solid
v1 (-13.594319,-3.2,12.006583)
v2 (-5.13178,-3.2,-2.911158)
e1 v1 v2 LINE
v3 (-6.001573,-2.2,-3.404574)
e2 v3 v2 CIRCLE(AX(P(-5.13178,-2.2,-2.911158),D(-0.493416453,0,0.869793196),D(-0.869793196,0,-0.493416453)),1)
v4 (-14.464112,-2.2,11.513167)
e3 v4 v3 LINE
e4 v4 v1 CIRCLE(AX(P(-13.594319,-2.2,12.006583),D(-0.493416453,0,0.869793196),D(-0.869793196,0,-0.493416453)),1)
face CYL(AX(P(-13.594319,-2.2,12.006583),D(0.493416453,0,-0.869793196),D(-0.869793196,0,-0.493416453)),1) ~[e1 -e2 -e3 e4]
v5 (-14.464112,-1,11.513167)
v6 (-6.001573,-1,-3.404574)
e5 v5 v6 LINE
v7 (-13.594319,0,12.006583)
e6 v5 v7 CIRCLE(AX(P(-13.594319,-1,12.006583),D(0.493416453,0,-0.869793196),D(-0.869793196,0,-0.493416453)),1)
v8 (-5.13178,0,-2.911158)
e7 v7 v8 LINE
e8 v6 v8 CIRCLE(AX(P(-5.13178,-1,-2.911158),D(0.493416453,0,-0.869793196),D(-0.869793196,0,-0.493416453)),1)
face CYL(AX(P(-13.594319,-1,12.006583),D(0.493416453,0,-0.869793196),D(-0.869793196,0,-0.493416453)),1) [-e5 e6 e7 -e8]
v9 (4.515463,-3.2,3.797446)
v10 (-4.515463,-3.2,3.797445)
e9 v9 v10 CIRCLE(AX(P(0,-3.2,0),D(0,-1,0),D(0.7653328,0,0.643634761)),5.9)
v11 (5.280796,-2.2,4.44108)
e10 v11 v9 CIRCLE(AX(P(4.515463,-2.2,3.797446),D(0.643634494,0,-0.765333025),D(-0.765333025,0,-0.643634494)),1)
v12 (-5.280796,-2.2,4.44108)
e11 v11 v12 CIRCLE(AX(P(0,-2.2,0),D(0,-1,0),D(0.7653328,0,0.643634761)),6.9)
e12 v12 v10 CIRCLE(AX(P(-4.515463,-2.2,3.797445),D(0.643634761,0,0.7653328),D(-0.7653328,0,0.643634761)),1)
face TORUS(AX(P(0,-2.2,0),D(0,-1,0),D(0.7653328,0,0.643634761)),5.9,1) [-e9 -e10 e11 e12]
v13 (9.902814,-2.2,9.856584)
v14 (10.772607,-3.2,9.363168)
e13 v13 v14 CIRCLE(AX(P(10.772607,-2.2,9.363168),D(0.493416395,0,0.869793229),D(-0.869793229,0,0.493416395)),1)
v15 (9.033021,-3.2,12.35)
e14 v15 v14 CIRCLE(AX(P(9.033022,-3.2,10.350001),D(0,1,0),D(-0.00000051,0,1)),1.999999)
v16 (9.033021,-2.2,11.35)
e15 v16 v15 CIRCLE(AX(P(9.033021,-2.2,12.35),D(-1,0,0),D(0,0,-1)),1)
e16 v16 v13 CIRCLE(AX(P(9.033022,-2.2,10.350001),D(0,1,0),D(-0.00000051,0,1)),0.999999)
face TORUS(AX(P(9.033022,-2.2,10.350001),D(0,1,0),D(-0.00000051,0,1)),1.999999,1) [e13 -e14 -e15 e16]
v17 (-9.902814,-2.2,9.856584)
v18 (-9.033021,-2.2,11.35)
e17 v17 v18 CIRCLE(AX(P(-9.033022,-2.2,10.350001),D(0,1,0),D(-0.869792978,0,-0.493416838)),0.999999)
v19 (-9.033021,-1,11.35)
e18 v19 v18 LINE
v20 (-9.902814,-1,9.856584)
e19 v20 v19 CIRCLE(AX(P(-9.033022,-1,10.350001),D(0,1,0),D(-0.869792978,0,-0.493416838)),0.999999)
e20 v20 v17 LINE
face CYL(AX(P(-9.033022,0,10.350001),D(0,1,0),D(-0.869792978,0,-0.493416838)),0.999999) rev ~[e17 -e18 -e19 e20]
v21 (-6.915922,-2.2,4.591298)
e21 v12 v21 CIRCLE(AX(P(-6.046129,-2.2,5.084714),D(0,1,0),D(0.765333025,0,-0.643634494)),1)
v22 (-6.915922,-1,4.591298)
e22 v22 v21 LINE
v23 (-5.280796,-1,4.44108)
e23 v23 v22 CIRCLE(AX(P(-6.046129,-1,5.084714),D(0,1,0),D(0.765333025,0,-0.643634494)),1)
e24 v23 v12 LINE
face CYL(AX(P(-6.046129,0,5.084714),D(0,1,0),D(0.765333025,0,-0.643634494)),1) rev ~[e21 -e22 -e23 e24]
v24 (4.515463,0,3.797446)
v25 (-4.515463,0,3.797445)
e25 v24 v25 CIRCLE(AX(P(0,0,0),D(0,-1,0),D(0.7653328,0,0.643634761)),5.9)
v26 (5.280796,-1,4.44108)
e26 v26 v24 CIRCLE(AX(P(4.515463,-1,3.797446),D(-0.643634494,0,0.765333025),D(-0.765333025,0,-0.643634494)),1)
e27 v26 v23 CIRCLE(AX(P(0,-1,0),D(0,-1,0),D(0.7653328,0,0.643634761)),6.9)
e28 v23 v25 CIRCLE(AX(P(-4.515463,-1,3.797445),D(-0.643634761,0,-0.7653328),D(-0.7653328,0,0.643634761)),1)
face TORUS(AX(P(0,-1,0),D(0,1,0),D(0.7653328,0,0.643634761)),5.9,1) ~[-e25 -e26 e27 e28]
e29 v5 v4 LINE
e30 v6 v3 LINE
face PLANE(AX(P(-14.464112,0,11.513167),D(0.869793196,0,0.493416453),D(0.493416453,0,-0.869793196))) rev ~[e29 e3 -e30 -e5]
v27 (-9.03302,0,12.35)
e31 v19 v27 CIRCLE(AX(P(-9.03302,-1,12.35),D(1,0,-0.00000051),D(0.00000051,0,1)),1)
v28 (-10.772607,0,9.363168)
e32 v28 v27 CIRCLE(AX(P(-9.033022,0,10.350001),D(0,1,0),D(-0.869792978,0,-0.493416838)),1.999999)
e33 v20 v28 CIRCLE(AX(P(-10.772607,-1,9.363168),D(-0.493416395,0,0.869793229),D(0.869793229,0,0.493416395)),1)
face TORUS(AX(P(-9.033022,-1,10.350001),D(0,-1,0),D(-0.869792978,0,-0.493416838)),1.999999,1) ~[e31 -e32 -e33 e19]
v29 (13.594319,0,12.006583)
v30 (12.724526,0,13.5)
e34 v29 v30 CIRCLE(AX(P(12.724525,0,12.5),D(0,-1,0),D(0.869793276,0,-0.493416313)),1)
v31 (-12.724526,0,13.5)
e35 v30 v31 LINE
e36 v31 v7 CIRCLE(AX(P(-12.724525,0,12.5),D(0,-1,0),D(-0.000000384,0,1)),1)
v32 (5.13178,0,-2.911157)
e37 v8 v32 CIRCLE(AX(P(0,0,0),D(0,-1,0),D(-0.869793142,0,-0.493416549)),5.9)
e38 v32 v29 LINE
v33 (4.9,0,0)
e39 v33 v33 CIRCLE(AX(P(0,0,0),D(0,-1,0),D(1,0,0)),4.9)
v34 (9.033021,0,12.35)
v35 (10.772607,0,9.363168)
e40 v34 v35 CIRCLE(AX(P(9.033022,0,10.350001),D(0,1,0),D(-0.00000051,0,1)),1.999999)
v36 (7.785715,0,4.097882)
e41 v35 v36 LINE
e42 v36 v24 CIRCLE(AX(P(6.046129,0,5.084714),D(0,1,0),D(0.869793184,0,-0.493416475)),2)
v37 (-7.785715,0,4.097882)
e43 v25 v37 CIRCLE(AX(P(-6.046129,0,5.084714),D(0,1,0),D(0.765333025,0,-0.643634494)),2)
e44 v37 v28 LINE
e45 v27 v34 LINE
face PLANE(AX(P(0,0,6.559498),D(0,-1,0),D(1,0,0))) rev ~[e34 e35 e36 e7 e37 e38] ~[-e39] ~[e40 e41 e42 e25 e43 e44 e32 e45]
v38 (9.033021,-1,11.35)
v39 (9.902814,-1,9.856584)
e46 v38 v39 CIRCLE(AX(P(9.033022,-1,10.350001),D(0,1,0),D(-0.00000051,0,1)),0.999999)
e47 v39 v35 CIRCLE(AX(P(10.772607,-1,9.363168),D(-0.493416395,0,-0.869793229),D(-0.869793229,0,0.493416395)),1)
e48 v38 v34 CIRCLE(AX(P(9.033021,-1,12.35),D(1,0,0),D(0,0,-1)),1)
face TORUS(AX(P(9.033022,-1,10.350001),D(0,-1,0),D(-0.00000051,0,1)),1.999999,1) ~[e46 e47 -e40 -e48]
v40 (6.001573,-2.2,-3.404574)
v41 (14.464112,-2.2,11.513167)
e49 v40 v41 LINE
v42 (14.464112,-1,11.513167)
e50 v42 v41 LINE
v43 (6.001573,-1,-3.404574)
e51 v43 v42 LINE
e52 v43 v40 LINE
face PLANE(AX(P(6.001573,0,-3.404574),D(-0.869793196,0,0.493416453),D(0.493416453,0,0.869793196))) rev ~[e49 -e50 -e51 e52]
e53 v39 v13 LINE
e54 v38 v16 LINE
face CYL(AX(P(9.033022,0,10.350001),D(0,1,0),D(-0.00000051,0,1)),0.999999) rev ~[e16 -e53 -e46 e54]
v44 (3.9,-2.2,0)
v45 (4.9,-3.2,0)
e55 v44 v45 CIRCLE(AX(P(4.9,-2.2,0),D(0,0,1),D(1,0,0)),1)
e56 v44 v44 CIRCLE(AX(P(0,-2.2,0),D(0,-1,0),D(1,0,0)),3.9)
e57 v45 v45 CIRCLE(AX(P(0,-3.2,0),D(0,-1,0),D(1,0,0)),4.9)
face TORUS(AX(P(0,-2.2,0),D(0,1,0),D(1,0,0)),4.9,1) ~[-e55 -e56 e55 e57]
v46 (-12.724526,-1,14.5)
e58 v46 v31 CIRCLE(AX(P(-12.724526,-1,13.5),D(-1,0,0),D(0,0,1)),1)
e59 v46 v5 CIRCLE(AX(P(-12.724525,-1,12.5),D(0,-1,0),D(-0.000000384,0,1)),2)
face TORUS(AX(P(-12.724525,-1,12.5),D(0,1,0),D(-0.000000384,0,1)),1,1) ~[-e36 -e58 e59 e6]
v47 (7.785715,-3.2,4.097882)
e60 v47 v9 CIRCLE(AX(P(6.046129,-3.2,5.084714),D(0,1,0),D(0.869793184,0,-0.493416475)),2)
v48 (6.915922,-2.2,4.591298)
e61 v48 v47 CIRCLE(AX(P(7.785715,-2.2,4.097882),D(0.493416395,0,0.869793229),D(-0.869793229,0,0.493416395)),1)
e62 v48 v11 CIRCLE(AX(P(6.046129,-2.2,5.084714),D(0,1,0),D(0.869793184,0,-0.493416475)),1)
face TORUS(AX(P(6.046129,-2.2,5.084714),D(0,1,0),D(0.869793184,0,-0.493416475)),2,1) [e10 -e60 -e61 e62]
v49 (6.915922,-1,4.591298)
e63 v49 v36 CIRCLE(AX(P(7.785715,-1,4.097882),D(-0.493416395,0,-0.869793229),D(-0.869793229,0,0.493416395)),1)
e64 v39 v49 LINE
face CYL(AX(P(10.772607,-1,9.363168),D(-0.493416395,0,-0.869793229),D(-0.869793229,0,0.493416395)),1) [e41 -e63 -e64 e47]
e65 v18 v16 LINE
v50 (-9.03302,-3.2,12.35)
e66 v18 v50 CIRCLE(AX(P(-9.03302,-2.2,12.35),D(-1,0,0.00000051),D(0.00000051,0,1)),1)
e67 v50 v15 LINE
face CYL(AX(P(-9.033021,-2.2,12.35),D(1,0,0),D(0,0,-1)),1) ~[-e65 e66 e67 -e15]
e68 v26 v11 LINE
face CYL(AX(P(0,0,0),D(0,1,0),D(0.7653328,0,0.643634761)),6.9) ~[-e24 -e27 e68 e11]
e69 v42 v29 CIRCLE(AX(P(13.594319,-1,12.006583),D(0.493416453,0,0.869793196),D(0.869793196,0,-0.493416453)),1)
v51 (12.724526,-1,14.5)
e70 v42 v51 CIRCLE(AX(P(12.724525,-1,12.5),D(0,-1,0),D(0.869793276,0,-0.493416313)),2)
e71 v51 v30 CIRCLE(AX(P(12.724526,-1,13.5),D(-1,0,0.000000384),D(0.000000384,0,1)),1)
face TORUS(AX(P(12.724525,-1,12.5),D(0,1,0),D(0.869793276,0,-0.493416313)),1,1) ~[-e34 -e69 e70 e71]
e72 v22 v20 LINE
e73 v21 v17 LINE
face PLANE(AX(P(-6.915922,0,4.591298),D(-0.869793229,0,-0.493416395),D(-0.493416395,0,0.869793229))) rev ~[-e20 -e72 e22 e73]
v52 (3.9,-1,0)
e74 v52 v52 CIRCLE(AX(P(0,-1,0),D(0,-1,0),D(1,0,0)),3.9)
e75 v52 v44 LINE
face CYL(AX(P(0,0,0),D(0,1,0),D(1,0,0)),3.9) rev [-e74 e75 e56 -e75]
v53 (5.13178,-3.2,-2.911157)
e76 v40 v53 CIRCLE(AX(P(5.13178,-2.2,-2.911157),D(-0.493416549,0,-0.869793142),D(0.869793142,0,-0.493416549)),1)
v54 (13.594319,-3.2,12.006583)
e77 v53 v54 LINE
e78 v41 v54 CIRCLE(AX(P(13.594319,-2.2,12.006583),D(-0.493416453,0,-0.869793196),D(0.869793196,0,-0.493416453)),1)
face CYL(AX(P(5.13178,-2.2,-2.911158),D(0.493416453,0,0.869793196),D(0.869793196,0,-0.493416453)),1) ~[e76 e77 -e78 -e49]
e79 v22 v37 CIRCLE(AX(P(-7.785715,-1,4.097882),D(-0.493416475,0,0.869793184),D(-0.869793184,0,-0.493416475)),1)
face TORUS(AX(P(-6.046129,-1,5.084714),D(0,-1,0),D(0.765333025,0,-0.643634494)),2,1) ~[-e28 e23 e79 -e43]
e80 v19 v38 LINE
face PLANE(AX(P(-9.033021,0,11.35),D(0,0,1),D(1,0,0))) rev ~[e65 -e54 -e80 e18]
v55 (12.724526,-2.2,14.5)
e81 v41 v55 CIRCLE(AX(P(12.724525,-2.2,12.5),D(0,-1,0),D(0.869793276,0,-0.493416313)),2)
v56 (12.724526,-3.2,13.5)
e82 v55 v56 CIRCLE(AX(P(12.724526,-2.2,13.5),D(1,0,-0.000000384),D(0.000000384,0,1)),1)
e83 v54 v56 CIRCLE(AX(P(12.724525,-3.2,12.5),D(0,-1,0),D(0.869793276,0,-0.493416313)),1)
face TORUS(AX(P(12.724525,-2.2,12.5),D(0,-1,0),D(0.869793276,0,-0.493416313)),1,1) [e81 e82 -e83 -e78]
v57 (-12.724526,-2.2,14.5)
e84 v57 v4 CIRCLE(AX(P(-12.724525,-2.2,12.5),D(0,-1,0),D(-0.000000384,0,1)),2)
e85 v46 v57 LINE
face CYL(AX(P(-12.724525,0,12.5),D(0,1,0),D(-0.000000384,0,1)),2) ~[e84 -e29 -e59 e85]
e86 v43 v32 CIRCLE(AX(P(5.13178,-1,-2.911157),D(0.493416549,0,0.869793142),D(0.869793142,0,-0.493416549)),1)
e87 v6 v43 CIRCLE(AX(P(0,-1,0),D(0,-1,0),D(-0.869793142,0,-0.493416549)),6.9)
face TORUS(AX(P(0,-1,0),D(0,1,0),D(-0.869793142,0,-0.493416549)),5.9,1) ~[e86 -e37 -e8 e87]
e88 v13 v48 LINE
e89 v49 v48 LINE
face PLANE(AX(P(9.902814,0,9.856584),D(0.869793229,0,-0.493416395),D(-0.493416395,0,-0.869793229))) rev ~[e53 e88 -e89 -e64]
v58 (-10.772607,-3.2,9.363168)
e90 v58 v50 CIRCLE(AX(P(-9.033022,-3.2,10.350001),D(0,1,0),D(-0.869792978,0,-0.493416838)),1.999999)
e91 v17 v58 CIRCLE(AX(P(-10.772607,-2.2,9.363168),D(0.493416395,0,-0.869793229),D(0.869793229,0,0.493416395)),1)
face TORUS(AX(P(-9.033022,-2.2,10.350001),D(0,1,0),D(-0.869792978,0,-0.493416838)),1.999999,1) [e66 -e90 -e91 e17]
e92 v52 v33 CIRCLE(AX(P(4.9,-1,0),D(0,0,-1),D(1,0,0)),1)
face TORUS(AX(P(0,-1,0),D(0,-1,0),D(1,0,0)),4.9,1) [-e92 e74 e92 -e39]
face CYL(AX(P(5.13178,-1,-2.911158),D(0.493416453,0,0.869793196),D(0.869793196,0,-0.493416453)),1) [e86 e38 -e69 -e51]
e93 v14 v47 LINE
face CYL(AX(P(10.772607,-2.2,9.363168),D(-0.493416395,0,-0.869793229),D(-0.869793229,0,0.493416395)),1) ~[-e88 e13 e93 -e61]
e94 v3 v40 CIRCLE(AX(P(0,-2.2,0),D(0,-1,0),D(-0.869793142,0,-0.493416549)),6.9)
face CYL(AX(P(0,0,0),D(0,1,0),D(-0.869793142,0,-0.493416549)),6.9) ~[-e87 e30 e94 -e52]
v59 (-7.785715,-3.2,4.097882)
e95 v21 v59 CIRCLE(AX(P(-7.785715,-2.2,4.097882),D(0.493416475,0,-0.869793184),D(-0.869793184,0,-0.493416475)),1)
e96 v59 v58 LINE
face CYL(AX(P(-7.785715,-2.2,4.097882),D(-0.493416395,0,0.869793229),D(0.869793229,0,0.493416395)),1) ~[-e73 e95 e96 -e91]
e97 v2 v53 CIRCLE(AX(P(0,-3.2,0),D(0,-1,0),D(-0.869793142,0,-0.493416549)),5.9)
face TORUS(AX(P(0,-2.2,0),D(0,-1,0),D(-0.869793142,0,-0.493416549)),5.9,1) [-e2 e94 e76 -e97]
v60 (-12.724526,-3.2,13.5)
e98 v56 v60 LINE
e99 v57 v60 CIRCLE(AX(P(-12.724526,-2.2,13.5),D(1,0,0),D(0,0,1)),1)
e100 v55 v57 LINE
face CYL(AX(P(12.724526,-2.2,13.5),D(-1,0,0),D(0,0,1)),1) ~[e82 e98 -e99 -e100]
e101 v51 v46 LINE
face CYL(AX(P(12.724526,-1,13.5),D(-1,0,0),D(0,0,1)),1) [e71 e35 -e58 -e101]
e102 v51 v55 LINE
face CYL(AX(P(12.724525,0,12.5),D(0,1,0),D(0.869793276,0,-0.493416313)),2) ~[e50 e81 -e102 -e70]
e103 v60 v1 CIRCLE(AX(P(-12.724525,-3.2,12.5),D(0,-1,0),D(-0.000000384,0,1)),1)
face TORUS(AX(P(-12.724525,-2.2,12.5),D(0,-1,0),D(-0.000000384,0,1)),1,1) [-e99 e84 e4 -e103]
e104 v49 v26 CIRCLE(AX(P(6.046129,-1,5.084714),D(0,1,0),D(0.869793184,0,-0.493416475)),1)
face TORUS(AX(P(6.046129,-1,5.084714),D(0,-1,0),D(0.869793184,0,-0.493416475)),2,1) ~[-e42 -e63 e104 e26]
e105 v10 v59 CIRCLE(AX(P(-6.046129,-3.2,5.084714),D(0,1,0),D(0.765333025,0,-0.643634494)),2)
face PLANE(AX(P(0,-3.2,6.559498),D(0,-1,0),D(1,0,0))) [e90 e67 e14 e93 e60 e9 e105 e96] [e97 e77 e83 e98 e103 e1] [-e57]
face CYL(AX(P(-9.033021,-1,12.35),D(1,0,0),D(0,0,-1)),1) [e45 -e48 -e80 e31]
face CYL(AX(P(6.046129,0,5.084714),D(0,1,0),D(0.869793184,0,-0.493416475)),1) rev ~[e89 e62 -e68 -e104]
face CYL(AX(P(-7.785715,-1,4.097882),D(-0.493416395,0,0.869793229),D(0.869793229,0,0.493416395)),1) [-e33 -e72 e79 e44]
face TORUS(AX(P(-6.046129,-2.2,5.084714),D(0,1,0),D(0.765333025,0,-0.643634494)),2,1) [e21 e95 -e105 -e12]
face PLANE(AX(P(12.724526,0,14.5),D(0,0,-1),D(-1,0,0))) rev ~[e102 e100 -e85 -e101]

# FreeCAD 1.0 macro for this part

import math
import FreeCAD as App
import Part
import Sketcher
Q = App.Units.Quantity


def edges_at(feature, points):
    """Names of the edges that pass closest to the given points."""
    edges = feature.Shape.Edges
    near = lambda p: min(range(len(edges)), key=lambda i: edges[i].distToShape(Part.Vertex(*p))[0])
    return sorted({f"Edge{near(p) + 1}" for p in points})

doc = App.newDocument("Part")
params = doc.addObject("Spreadsheet::Sheet", "Params")
for row, (alias, value) in enumerate([
    ("sketch1_radius", "2 mm"),
    ("sketch1_radius2", "0.999999 mm"),
    ("sketch1_diameter", "7.8 mm"),
    ("sketch1_radius3", "6.9 mm"),
    ("pad1_length", "3.2 mm"),
    ("fillet_radius", "1 mm"),
], start=1):
    params.set(f"A{row}", alias)
    params.set(f"B{row}", "=" + value)
    params.setAlias(f"B{row}", alias)

body = doc.addObject("PartDesign::Body", "Body")

# Sketch on XZ plane
sketch1 = body.newObject("Sketcher::SketchObject", "Sketch")
sketch1.AttachmentSupport = (doc.getObject("XZ_Plane"), [""])
sketch1.MapMode = "FlatFace"
sketch1.addGeometry([
    Part.LineSegment(App.Vector(-14.5, 11.5, 0), App.Vector(-6, -3.4, 0)),  # 0
    Part.ArcOfCircle(Part.Circle(App.Vector(0, 0, 0), App.Vector(0, 0, 1), 6.9), math.radians(-150), math.radians(-30)),  # 1
    Part.LineSegment(App.Vector(6, -3.4, 0), App.Vector(14.5, 11.5, 0)),  # 2
    Part.ArcOfCircle(Part.Circle(App.Vector(12.7, 12.5, 0), App.Vector(0, 0, 1), 2), math.radians(-30), math.radians(90)),  # 3
    Part.LineSegment(App.Vector(12.7, 14.5, 0), App.Vector(-12.7, 14.5, 0)),  # 4
    Part.ArcOfCircle(Part.Circle(App.Vector(-12.7, 12.5, 0), App.Vector(0, 0, 1), 2), math.radians(90), math.radians(210)),  # 5
    Part.Circle(App.Vector(0, 0, 0), App.Vector(0, 0, 1), 3.9),  # 6
    Part.LineSegment(App.Vector(-6.9, 4.6, 0), App.Vector(-9.9, 9.9, 0)),  # 7
    Part.ArcOfCircle(Part.Circle(App.Vector(-9, 10.4, 0), App.Vector(0, 0, 1), 1), math.radians(90), math.radians(210)),  # 8
    Part.LineSegment(App.Vector(-9, 11.3, 0), App.Vector(9, 11.3, 0)),  # 9
    Part.ArcOfCircle(Part.Circle(App.Vector(9, 10.4, 0), App.Vector(0, 0, 1), 1), math.radians(-30), math.radians(90)),  # 10
    Part.LineSegment(App.Vector(9.9, 9.9, 0), App.Vector(6.9, 4.6, 0)),  # 11
    Part.ArcOfCircle(Part.Circle(App.Vector(6, 5.1, 0), App.Vector(0, 0, 1), 1), math.radians(-140), math.radians(-30)),  # 12
    Part.ArcOfCircle(Part.Circle(App.Vector(0, 0, 0), App.Vector(0, 0, 1), 6.9), math.radians(40), math.radians(140)),  # 13
    Part.ArcOfCircle(Part.Circle(App.Vector(-6, 5.1, 0), App.Vector(0, 0, 1), 1), math.radians(-150), math.radians(-40)),  # 14
], False)
sketch1.addConstraint([
    Sketcher.Constraint("Tangent", 0, 2, 1, 1),
    Sketcher.Constraint("Tangent", 1, 2, 2, 1),
    Sketcher.Constraint("Tangent", 2, 2, 3, 1),
    Sketcher.Constraint("Tangent", 3, 2, 4, 1),
    Sketcher.Constraint("Tangent", 4, 2, 5, 1),
    Sketcher.Constraint("Tangent", 5, 2, 0, 1),
    Sketcher.Constraint("Tangent", 7, 2, 8, 2),
    Sketcher.Constraint("Tangent", 8, 1, 9, 1),
    Sketcher.Constraint("Tangent", 9, 2, 10, 2),
    Sketcher.Constraint("Tangent", 10, 1, 11, 1),
    Sketcher.Constraint("Tangent", 11, 2, 12, 2),
    Sketcher.Constraint("Tangent", 12, 1, 13, 1),
    Sketcher.Constraint("Tangent", 13, 2, 14, 2),
    Sketcher.Constraint("Tangent", 14, 1, 7, 1),
    Sketcher.Constraint("Horizontal", 4),
    Sketcher.Constraint("Horizontal", 9),
    Sketcher.Constraint("Coincident", 1, 3, -1, 1),
    Sketcher.Constraint("Coincident", 6, 3, -1, 1),
    Sketcher.Constraint("Coincident", 13, 3, -1, 1),
    Sketcher.Constraint("Equal", 3, 5),
    Sketcher.Constraint("Equal", 8, 10),
    Sketcher.Constraint("Equal", 10, 12),
    Sketcher.Constraint("Equal", 1, 13),
    Sketcher.Constraint("Equal", 12, 14),
    Sketcher.Constraint("Symmetric", 7, 2, 10, 1, -2),
    Sketcher.Constraint("Parallel", 0, 7),
    Sketcher.Constraint("Parallel", 2, 11),
    Sketcher.Constraint("Radius", 3, Q("2 mm")),
    Sketcher.Constraint("Radius", 8, Q("0.999999 mm")),
    Sketcher.Constraint("Diameter", 6, Q("7.8 mm")),
    Sketcher.Constraint("Radius", 1, Q("6.9 mm")),
    Sketcher.Constraint("DistanceY", -1, 1, 3, 3, Q("12.5 mm")),
    Sketcher.Constraint("DistanceY", -1, 1, 8, 3, Q("10.350001 mm")),
    Sketcher.Constraint("DistanceX", 4, 2, 4, 1, Q("25.449052 mm")),
    Sketcher.Constraint("DistanceX", 9, 1, 9, 2, Q("18.066042 mm")),
])
sketch1.setExpression("Constraints[27]", "Params.sketch1_radius")
sketch1.setExpression("Constraints[28]", "Params.sketch1_radius2")
sketch1.setExpression("Constraints[29]", "Params.sketch1_diameter")
sketch1.setExpression("Constraints[30]", "Params.sketch1_radius3")
pad1 = body.newObject("PartDesign::Pad", "Pad")
pad1.Profile = sketch1
pad1.setExpression("Length", "Params.pad1_length")
doc.recompute()

fillet = body.newObject("PartDesign::Fillet", "Fillet")
fillet.Base = (pad1, edges_at(pad1, [
    (-10.233, -3.2, 4.054),
    (0, -3.2, -6.9),
    (10.233, -3.2, 4.054),
    (14.453, -3.2, 13.507),
    (0, -3.2, 14.5),
    (-14.453, -3.2, 13.507),
    (-3.9, -3.2, 0),
    (8.409, -3.2, 7.224),
    (6.138, -3.2, 4.089),
    (0, -3.2, 6.9),
    (-6.138, -3.2, 4.089),
    (-8.409, -3.2, 7.224),
    (-9.897, -3.2, 10.853),
    (0, -3.2, 11.35),
    (9.897, -3.2, 10.853),
    (-10.233, 0, 4.054),
    (0, 0, -6.9),
    (10.233, 0, 4.054),
    (14.453, 0, 13.507),
    (0, 0, 14.5),
    (-14.453, 0, 13.507),
    (-3.9, 0, 0),
    (8.409, 0, 7.224),
    (6.138, 0, 4.089),
    (0, 0, 6.9),
    (-6.138, 0, 4.089),
    (-8.409, 0, 7.224),
    (-9.897, 0, 10.853),
    (0, 0, 11.35),
    (9.897, 0, 10.853),
]))
fillet.setExpression("Radius", "Params.fillet_radius")

doc.recompute()
